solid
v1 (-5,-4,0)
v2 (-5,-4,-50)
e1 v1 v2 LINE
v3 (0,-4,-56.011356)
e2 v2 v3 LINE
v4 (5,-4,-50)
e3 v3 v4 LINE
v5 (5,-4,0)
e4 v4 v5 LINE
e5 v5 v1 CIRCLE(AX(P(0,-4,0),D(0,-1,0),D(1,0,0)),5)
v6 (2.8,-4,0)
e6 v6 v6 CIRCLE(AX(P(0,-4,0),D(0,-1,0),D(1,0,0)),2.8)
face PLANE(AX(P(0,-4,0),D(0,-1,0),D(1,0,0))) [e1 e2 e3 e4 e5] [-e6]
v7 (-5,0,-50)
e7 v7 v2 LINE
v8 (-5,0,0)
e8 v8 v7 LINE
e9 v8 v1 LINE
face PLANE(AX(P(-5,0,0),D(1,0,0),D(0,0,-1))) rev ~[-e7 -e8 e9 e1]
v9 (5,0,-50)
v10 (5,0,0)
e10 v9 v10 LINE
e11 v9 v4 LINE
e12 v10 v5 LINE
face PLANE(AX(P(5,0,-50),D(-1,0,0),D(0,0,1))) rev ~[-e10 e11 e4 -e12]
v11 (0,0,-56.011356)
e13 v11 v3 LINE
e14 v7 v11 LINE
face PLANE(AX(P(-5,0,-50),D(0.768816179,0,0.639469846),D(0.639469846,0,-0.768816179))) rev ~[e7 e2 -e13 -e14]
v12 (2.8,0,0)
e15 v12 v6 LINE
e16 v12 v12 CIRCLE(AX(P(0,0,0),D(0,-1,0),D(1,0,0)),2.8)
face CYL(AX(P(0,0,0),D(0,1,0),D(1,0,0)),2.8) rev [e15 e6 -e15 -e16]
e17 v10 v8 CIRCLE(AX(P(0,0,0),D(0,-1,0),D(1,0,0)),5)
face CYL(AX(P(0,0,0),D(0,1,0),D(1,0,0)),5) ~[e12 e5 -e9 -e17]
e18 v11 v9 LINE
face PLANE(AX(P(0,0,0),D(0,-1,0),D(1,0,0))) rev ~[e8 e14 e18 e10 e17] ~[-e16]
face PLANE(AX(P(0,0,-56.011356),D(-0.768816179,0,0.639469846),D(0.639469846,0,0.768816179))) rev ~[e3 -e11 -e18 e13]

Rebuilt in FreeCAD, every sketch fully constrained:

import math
import FreeCAD as App
import Part
import Sketcher

V = App.Vector
Q = App.Units.Quantity

doc = App.newDocument("Part")
body = doc.addObject("PartDesign::Body", "Body")

sketch1 = doc.addObject("Sketcher::SketchObject", "Sketch")
body.addObject(sketch1)
sketch1.AttachmentSupport = (doc.XZ_Plane, [""])
sketch1.MapMode = "FlatFace"
sketch1.addGeometry(Part.ArcOfCircle(Part.Circle(V(0, 0, 0), V(0, 0, 1), 5), math.radians(0), math.radians(180)), False)
sketch1.addGeometry(Part.LineSegment(V(-5, 0, 0), V(-5, -50, 0)), False)
sketch1.addGeometry(Part.LineSegment(V(-5, -50, 0), V(0, -56.011356, 0)), False)
sketch1.addGeometry(Part.LineSegment(V(0, -56.011356, 0), V(5, -50, 0)), False)
sketch1.addGeometry(Part.LineSegment(V(5, -50, 0), V(5, 0, 0)), False)
sketch1.addGeometry(Part.Circle(V(0, 0, 0), V(0, 0, 1), 2.8), False)
sketch1.addConstraint(Sketcher.Constraint("Tangent", 0, 2, 1, 1))
sketch1.addConstraint(Sketcher.Constraint("Coincident", 1, 2, 2, 1))
sketch1.addConstraint(Sketcher.Constraint("Coincident", 2, 2, 3, 1))
sketch1.addConstraint(Sketcher.Constraint("Coincident", 3, 2, 4, 1))
sketch1.addConstraint(Sketcher.Constraint("Tangent", 4, 2, 0, 1))
sketch1.addConstraint(Sketcher.Constraint("Vertical", 1))
sketch1.addConstraint(Sketcher.Constraint("Vertical", 4))
sketch1.addConstraint(Sketcher.Constraint("Coincident", 0, 3, -1, 1))
sketch1.addConstraint(Sketcher.Constraint("Coincident", 5, 3, -1, 1))
sketch1.addConstraint(Sketcher.Constraint("PointOnObject", 2, 2, -2))
sketch1.addConstraint(Sketcher.Constraint("Horizontal", 1, 2, 3, 2))
sketch1.addConstraint(Sketcher.Constraint("Radius", 0, Q("5 mm")))
sketch1.addConstraint(Sketcher.Constraint("Diameter", 5, Q("5.6 mm")))
sketch1.addConstraint(Sketcher.Constraint("DistanceY", 1, 2, 1, 1, Q("50 mm")))
sketch1.addConstraint(Sketcher.Constraint("Distance", 2, Q("7.818977 mm")))
pad1 = doc.addObject("PartDesign::Pad", "Pad")
body.addObject(pad1)
pad1.Profile = sketch1
pad1.Length = 4

doc.recompute()
